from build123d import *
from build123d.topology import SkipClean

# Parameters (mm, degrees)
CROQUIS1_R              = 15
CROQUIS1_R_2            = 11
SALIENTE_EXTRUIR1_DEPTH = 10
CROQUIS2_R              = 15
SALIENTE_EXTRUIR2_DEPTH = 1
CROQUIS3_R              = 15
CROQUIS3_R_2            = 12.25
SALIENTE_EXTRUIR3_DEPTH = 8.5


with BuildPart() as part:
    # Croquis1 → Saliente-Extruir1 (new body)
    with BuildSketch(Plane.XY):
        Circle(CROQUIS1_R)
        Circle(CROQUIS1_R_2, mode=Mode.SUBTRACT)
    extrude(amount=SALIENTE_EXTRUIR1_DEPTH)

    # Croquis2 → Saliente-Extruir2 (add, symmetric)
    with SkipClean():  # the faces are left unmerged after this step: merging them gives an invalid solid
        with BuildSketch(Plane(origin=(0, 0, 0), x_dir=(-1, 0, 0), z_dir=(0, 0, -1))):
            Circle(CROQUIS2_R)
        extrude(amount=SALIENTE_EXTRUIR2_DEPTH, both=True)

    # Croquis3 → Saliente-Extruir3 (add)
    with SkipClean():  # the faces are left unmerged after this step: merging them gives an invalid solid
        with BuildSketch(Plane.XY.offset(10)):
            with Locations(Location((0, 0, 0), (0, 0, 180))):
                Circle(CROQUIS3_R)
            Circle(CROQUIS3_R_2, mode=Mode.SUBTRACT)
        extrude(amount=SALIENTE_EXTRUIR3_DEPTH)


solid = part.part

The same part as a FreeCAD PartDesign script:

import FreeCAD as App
import Part
import Sketcher

V = App.Vector
Q = App.Units.Quantity

doc = App.newDocument("Part")
body = doc.addObject("PartDesign::Body", "Body")

sketch1 = doc.addObject("Sketcher::SketchObject", "Sketch")
body.addObject(sketch1)
sketch1.AttachmentSupport = (doc.XY_Plane, [""])
sketch1.MapMode = "FlatFace"
sketch1.addGeometry([
    Part.Circle(V(0, 0, 0), V(0, 0, 1), 15),
    Part.Circle(V(0, 0, 0), V(0, 0, 1), 11),
], False)
sketch1.addConstraint([
    Sketcher.Constraint("Coincident", 0, 3, -1, 1),
    Sketcher.Constraint("Coincident", 1, 3, -1, 1),
    Sketcher.Constraint("Diameter", 0, Q("30 mm")),
    Sketcher.Constraint("Diameter", 1, Q("22 mm")),
])
pad1 = doc.addObject("PartDesign::Pad", "Pad")
body.addObject(pad1)
pad1.Profile = sketch1
pad1.Length = 10

sketch2 = doc.addObject("Sketcher::SketchObject", "Sketch001")
body.addObject(sketch2)
sketch2.AttachmentSupport = (doc.XY_Plane, [""])
sketch2.MapMode = "FlatFace"
sketch2.addGeometry(Part.Circle(V(0, 0, 0), V(0, 0, 1), 15), False)
sketch2.addConstraint([
    Sketcher.Constraint("Coincident", 0, 3, -1, 1),
    Sketcher.Constraint("Diameter", 0, Q("30 mm")),
])
pad2 = doc.addObject("PartDesign::Pad", "Pad001")
body.addObject(pad2)
pad2.Profile = sketch2
pad2.Length = 2
pad2.Midplane = True

sketch3 = doc.addObject("Sketcher::SketchObject", "Sketch002")
body.addObject(sketch3)
sketch3.AttachmentSupport = (doc.XY_Plane, [""])
sketch3.MapMode = "FlatFace"
sketch3.AttachmentOffset = App.Placement(V(0, 0, 10), App.Rotation())
sketch3.addGeometry([
    Part.Circle(V(0, 0, 0), V(0, 0, 1), 15),
    Part.Circle(V(0, 0, 0), V(0, 0, 1), 12),
], False)
sketch3.addConstraint([
    Sketcher.Constraint("Coincident", 0, 3, -1, 1),
    Sketcher.Constraint("Coincident", 1, 3, -1, 1),
    Sketcher.Constraint("Diameter", 0, Q("30 mm")),
    Sketcher.Constraint("Diameter", 1, Q("24.5 mm")),
])
pad3 = doc.addObject("PartDesign::Pad", "Pad002")
body.addObject(pad3)
pad3.Profile = sketch3
pad3.Length = 8.5

doc.recompute()
